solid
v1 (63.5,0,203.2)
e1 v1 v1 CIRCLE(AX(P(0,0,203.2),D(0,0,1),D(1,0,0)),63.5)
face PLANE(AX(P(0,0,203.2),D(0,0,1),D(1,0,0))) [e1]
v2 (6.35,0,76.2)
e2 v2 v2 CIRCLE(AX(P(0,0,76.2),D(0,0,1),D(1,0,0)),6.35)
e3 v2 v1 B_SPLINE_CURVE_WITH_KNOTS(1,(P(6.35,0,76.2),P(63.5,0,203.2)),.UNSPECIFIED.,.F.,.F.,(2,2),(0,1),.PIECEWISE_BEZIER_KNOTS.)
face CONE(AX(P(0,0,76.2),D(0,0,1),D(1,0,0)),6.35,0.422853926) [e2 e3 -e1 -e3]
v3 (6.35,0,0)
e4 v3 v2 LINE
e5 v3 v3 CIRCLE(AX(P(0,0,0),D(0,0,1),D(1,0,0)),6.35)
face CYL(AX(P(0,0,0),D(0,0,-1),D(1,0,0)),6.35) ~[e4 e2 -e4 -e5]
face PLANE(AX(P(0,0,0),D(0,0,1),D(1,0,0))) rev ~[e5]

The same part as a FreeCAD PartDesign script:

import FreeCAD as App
import Part
import Sketcher

V = App.Vector
Q = App.Units.Quantity

doc = App.newDocument("Part")
body = doc.addObject("PartDesign::Body", "Body")

# Sketch on XY plane
sketch1 = body.newObject("Sketcher::SketchObject", "Sketch")
sketch1.AttachmentSupport = (doc.getObject("XY_Plane"), [""])
sketch1.MapMode = "FlatFace"
sketch1.AttachmentOffset = App.Placement(V(0, 0, 3 * 25.4), App.Rotation())
sketch1.addGeometry(Part.Circle(V(0, 0, 0), V(0, 0, 1), 6.35), False)
sketch1.addConstraint([
    Sketcher.Constraint("Coincident", 0, 3, -1, 1),
    Sketcher.Constraint("Diameter", 0, Q("0.5 in")),
])

# Sketch on XY plane
sketch2 = body.newObject("Sketcher::SketchObject", "Sketch001")
sketch2.AttachmentSupport = (doc.getObject("XY_Plane"), [""])
sketch2.MapMode = "FlatFace"
sketch2.AttachmentOffset = App.Placement(V(0, 0, 8 * 25.4), App.Rotation())
sketch2.addGeometry(Part.Circle(V(0, 0, 0), V(0, 0, 1), 63.5), False)
sketch2.addConstraint([
    Sketcher.Constraint("Coincident", 0, 3, -1, 1),
    Sketcher.Constraint("Diameter", 0, Q("5 in")),
])

additiveloft = body.newObject("PartDesign::AdditiveLoft", "AdditiveLoft")
additiveloft.Profile = sketch1
additiveloft.Sections = [sketch2]

# Sketch on XY plane
sketch3 = body.newObject("Sketcher::SketchObject", "Sketch002")
sketch3.AttachmentSupport = (doc.getObject("XY_Plane"), [""])
sketch3.MapMode = "FlatFace"
sketch3.addGeometry(Part.Circle(V(0, 0, 0), V(0, 0, 1), 6.35), False)
sketch3.addConstraint([
    Sketcher.Constraint("Coincident", 0, 3, -1, 1),
    Sketcher.Constraint("Diameter", 0, Q("0.5 in")),
])
pad1 = body.newObject("PartDesign::Pad", "Pad")
pad1.Profile = sketch3
pad1.Length = Q("3.1 in")

doc.recompute()
